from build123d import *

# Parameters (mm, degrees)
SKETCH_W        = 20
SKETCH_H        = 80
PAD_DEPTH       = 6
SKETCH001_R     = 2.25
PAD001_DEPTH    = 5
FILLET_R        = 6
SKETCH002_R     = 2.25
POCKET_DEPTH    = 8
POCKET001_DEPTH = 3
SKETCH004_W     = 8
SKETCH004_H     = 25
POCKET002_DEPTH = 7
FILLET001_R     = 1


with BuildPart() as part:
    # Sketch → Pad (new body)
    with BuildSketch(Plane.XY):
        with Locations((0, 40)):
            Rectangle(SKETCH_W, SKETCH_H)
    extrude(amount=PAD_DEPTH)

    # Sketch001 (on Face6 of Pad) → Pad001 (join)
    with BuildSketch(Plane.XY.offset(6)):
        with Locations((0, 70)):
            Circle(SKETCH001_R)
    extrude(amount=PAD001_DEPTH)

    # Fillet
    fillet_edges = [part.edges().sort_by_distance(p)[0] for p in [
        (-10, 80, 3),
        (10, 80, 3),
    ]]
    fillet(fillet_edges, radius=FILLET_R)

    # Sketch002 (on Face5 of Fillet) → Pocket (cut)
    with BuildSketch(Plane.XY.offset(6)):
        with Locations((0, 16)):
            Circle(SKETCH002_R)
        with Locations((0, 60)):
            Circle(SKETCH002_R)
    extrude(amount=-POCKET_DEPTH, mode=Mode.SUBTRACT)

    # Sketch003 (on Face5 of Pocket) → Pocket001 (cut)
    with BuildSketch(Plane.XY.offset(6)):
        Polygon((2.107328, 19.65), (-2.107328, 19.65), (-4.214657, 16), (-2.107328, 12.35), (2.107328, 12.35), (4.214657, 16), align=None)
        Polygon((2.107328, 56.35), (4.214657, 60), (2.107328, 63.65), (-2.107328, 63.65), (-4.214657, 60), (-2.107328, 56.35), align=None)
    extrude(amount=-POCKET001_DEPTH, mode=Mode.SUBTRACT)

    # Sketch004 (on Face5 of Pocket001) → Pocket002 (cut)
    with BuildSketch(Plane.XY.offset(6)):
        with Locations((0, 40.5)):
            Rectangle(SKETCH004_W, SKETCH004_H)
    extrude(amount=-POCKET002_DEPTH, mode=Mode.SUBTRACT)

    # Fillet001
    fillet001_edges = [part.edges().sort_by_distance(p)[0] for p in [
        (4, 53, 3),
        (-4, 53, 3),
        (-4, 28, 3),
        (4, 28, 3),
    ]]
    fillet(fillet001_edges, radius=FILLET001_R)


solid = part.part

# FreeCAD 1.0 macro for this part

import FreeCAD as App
import Part
import Sketcher
from FreeCAD import Vector
Q = App.Units.Quantity


def edges_at(feature, points):
    """Names of the edges that pass closest to the given points."""
    edges = feature.Shape.Edges
    near = lambda p: min(range(len(edges)), key=lambda i: edges[i].distToShape(Part.Vertex(*p))[0])
    return sorted({f"Edge{near(p) + 1}" for p in points})


def add_polygon(sketch, points):
    """Adds a closed chain of lines whose ends are joined by coincident constraints."""
    first, n = sketch.GeometryCount, len(points)
    for a, b in zip(points, points[1:] + points[:1]):
        sketch.addGeometry(Part.LineSegment(App.Vector(*a, 0), App.Vector(*b, 0)), False)
    for i in range(n):
        sketch.addConstraint(Sketcher.Constraint("Coincident", first + i, 2, first + (i + 1) % n, 1))

doc = App.newDocument("Part")
body = doc.addObject("PartDesign::Body", "Body")

# Sketch on XY plane
sketch1 = doc.addObject("Sketcher::SketchObject", "Sketch")
body.addObject(sketch1)
sketch1.AttachmentSupport = (doc.XY_Plane, [""])
sketch1.MapMode = "FlatFace"
add_polygon(sketch1, [(-10, 80), (-10, 0), (10, 0), (10, 80)])  # lines 0-3
sketch1.addConstraint(Sketcher.Constraint("Vertical", 0))
sketch1.addConstraint(Sketcher.Constraint("Horizontal", 1))
sketch1.addConstraint(Sketcher.Constraint("Vertical", 2))
sketch1.addConstraint(Sketcher.Constraint("Horizontal", 3))
sketch1.addConstraint(Sketcher.Constraint("Symmetric", 0, 2, 1, 2, -1, 1))
sketch1.addConstraint(Sketcher.Constraint("DistanceX", 1, 1, 1, 2, Q("20 mm")))
sketch1.addConstraint(Sketcher.Constraint("DistanceY", 0, 2, 0, 1, Q("80 mm")))
pad1 = doc.addObject("PartDesign::Pad", "Pad")
body.addObject(pad1)
pad1.Profile = sketch1
pad1.Length = 6

# Sketch on XY plane
sketch2 = doc.addObject("Sketcher::SketchObject", "Sketch001")
body.addObject(sketch2)
sketch2.AttachmentSupport = (doc.XY_Plane, [""])
sketch2.MapMode = "FlatFace"
sketch2.AttachmentOffset = App.Placement(Vector(0, 0, 6), App.Rotation())
sketch2.addGeometry(Part.Circle(Vector(0, 70, 0), Vector(0, 0, 1), 2.2), False)
sketch2.addConstraint(Sketcher.Constraint("PointOnObject", 0, 3, -2))
sketch2.addConstraint(Sketcher.Constraint("Diameter", 0, Q("4.5 mm")))
sketch2.addConstraint(Sketcher.Constraint("DistanceY", -1, 1, 0, 3, Q("70 mm")))
pad2 = doc.addObject("PartDesign::Pad", "Pad001")
body.addObject(pad2)
pad2.Profile = sketch2
pad2.Length = 5
doc.recompute()

fillet = doc.addObject("PartDesign::Fillet", "Fillet")
body.addObject(fillet)
fillet.Base = (pad2, edges_at(pad2, [(-10, 80, 3), (10, 80, 3)]))
fillet.Radius = 6

# Sketch on XY plane
sketch3 = doc.addObject("Sketcher::SketchObject", "Sketch002")
body.addObject(sketch3)
sketch3.AttachmentSupport = (doc.XY_Plane, [""])
sketch3.MapMode = "FlatFace"
sketch3.AttachmentOffset = App.Placement(Vector(0, 0, 6), App.Rotation())
sketch3.addGeometry(Part.Circle(Vector(0, 16, 0), Vector(0, 0, 1), 2.2), False)
sketch3.addGeometry(Part.Circle(Vector(0, 60, 0), Vector(0, 0, 1), 2.2), False)
sketch3.addConstraint(Sketcher.Constraint("Equal", 0, 1))
sketch3.addConstraint(Sketcher.Constraint("PointOnObject", 0, 3, -2))
sketch3.addConstraint(Sketcher.Constraint("PointOnObject", 1, 3, -2))
sketch3.addConstraint(Sketcher.Constraint("Diameter", 0, Q("4.5 mm")))
sketch3.addConstraint(Sketcher.Constraint("DistanceY", -1, 1, 0, 3, Q("16 mm")))
sketch3.addConstraint(Sketcher.Constraint("DistanceY", -1, 1, 1, 3, Q("60 mm")))
pocket1 = doc.addObject("PartDesign::Pocket", "Pocket")
body.addObject(pocket1)
pocket1.Profile = sketch3
pocket1.Length = 8

# Sketch on XY plane
sketch4 = doc.addObject("Sketcher::SketchObject", "Sketch003")
body.addObject(sketch4)
sketch4.AttachmentSupport = (doc.XY_Plane, [""])
sketch4.MapMode = "FlatFace"
sketch4.AttachmentOffset = App.Placement(Vector(0, 0, 6), App.Rotation())
add_polygon(sketch4, [(2.1, 19.6), (-2.1, 19.6), (-4.2, 16), (-2.1, 12.3), (2.1, 12.3), (4.2, 16)])  # lines 0-5
add_polygon(sketch4, [(2.1, 56.4), (4.2, 60), (2.1, 63.6), (-2.1, 63.6), (-4.2, 60), (-2.1, 56.4)])  # lines 6-11
sketch4.addConstraint(Sketcher.Constraint("Horizontal", 0))
sketch4.addConstraint(Sketcher.Constraint("Horizontal", 3))
sketch4.addConstraint(Sketcher.Constraint("Horizontal", 8))
sketch4.addConstraint(Sketcher.Constraint("Horizontal", 11))
sketch4.addConstraint(Sketcher.Constraint("Symmetric", 1, 2, 4, 2, -2))
sketch4.addConstraint(Sketcher.Constraint("Symmetric", 6, 2, 9, 2, -2))
sketch4.addConstraint(Sketcher.Constraint("Parallel", 1, 4))
sketch4.addConstraint(Sketcher.Constraint("Parallel", 2, 5))
sketch4.addConstraint(Sketcher.Constraint("Parallel", 4, 6))
sketch4.addConstraint(Sketcher.Constraint("Parallel", 5, 7))
sketch4.addConstraint(Sketcher.Constraint("Parallel", 6, 9))
sketch4.addConstraint(Sketcher.Constraint("Parallel", 7, 10))
sketch4.addConstraint(Sketcher.Constraint("Vertical", 0, 2, 2, 2))
sketch4.addConstraint(Sketcher.Constraint("Vertical", 3, 2, 5, 2))
sketch4.addConstraint(Sketcher.Constraint("Vertical", 4, 2, 6, 2))
sketch4.addConstraint(Sketcher.Constraint("Vertical", 5, 2, 7, 2))
sketch4.addConstraint(Sketcher.Constraint("Vertical", 8, 2, 10, 2))
sketch4.addConstraint(Sketcher.Constraint("Angle", 1, Q("-120.000006 deg")))
sketch4.addConstraint(Sketcher.Constraint("DistanceY", -1, 1, 1, 2, Q("16 mm")))
sketch4.addConstraint(Sketcher.Constraint("DistanceY", -1, 1, 6, 2, Q("60 mm")))
sketch4.addConstraint(Sketcher.Constraint("DistanceY", 2, 2, 0, 2, Q("7.3 mm")))
sketch4.addConstraint(Sketcher.Constraint("DistanceX", 0, 2, 0, 1, Q("4.214656 mm")))
pocket2 = doc.addObject("PartDesign::Pocket", "Pocket001")
body.addObject(pocket2)
pocket2.Profile = sketch4
pocket2.Length = 3

# Sketch on XY plane
sketch5 = doc.addObject("Sketcher::SketchObject", "Sketch004")
body.addObject(sketch5)
sketch5.AttachmentSupport = (doc.XY_Plane, [""])
sketch5.MapMode = "FlatFace"
sketch5.AttachmentOffset = App.Placement(Vector(0, 0, 6), App.Rotation())
add_polygon(sketch5, [(-4, 53), (-4, 28), (4, 28), (4, 53)])  # lines 0-3
sketch5.addConstraint(Sketcher.Constraint("Vertical", 0))
sketch5.addConstraint(Sketcher.Constraint("Horizontal", 1))
sketch5.addConstraint(Sketcher.Constraint("Vertical", 2))
sketch5.addConstraint(Sketcher.Constraint("Horizontal", 3))
sketch5.addConstraint(Sketcher.Constraint("DistanceX", 1, 1, 1, 2, Q("8 mm")))
sketch5.addConstraint(Sketcher.Constraint("DistanceY", 0, 2, 0, 1, Q("25 mm")))
sketch5.addConstraint(Sketcher.Constraint("DistanceX", 0, 2, -1, 1, Q("4 mm")))
sketch5.addConstraint(Sketcher.Constraint("DistanceY", -1, 1, 0, 2, Q("28 mm")))
pocket3 = doc.addObject("PartDesign::Pocket", "Pocket002")
body.addObject(pocket3)
pocket3.Profile = sketch5
pocket3.Length = 7
doc.recompute()

fillet2 = doc.addObject("PartDesign::Fillet", "Fillet001")
body.addObject(fillet2)
fillet2.Base = (pocket3, edges_at(pocket3, [
    (4, 53, 3),
    (-4, 53, 3),
    (-4, 28, 3),
    (4, 28, 3),
]))
fillet2.Radius = 1

doc.recompute()
